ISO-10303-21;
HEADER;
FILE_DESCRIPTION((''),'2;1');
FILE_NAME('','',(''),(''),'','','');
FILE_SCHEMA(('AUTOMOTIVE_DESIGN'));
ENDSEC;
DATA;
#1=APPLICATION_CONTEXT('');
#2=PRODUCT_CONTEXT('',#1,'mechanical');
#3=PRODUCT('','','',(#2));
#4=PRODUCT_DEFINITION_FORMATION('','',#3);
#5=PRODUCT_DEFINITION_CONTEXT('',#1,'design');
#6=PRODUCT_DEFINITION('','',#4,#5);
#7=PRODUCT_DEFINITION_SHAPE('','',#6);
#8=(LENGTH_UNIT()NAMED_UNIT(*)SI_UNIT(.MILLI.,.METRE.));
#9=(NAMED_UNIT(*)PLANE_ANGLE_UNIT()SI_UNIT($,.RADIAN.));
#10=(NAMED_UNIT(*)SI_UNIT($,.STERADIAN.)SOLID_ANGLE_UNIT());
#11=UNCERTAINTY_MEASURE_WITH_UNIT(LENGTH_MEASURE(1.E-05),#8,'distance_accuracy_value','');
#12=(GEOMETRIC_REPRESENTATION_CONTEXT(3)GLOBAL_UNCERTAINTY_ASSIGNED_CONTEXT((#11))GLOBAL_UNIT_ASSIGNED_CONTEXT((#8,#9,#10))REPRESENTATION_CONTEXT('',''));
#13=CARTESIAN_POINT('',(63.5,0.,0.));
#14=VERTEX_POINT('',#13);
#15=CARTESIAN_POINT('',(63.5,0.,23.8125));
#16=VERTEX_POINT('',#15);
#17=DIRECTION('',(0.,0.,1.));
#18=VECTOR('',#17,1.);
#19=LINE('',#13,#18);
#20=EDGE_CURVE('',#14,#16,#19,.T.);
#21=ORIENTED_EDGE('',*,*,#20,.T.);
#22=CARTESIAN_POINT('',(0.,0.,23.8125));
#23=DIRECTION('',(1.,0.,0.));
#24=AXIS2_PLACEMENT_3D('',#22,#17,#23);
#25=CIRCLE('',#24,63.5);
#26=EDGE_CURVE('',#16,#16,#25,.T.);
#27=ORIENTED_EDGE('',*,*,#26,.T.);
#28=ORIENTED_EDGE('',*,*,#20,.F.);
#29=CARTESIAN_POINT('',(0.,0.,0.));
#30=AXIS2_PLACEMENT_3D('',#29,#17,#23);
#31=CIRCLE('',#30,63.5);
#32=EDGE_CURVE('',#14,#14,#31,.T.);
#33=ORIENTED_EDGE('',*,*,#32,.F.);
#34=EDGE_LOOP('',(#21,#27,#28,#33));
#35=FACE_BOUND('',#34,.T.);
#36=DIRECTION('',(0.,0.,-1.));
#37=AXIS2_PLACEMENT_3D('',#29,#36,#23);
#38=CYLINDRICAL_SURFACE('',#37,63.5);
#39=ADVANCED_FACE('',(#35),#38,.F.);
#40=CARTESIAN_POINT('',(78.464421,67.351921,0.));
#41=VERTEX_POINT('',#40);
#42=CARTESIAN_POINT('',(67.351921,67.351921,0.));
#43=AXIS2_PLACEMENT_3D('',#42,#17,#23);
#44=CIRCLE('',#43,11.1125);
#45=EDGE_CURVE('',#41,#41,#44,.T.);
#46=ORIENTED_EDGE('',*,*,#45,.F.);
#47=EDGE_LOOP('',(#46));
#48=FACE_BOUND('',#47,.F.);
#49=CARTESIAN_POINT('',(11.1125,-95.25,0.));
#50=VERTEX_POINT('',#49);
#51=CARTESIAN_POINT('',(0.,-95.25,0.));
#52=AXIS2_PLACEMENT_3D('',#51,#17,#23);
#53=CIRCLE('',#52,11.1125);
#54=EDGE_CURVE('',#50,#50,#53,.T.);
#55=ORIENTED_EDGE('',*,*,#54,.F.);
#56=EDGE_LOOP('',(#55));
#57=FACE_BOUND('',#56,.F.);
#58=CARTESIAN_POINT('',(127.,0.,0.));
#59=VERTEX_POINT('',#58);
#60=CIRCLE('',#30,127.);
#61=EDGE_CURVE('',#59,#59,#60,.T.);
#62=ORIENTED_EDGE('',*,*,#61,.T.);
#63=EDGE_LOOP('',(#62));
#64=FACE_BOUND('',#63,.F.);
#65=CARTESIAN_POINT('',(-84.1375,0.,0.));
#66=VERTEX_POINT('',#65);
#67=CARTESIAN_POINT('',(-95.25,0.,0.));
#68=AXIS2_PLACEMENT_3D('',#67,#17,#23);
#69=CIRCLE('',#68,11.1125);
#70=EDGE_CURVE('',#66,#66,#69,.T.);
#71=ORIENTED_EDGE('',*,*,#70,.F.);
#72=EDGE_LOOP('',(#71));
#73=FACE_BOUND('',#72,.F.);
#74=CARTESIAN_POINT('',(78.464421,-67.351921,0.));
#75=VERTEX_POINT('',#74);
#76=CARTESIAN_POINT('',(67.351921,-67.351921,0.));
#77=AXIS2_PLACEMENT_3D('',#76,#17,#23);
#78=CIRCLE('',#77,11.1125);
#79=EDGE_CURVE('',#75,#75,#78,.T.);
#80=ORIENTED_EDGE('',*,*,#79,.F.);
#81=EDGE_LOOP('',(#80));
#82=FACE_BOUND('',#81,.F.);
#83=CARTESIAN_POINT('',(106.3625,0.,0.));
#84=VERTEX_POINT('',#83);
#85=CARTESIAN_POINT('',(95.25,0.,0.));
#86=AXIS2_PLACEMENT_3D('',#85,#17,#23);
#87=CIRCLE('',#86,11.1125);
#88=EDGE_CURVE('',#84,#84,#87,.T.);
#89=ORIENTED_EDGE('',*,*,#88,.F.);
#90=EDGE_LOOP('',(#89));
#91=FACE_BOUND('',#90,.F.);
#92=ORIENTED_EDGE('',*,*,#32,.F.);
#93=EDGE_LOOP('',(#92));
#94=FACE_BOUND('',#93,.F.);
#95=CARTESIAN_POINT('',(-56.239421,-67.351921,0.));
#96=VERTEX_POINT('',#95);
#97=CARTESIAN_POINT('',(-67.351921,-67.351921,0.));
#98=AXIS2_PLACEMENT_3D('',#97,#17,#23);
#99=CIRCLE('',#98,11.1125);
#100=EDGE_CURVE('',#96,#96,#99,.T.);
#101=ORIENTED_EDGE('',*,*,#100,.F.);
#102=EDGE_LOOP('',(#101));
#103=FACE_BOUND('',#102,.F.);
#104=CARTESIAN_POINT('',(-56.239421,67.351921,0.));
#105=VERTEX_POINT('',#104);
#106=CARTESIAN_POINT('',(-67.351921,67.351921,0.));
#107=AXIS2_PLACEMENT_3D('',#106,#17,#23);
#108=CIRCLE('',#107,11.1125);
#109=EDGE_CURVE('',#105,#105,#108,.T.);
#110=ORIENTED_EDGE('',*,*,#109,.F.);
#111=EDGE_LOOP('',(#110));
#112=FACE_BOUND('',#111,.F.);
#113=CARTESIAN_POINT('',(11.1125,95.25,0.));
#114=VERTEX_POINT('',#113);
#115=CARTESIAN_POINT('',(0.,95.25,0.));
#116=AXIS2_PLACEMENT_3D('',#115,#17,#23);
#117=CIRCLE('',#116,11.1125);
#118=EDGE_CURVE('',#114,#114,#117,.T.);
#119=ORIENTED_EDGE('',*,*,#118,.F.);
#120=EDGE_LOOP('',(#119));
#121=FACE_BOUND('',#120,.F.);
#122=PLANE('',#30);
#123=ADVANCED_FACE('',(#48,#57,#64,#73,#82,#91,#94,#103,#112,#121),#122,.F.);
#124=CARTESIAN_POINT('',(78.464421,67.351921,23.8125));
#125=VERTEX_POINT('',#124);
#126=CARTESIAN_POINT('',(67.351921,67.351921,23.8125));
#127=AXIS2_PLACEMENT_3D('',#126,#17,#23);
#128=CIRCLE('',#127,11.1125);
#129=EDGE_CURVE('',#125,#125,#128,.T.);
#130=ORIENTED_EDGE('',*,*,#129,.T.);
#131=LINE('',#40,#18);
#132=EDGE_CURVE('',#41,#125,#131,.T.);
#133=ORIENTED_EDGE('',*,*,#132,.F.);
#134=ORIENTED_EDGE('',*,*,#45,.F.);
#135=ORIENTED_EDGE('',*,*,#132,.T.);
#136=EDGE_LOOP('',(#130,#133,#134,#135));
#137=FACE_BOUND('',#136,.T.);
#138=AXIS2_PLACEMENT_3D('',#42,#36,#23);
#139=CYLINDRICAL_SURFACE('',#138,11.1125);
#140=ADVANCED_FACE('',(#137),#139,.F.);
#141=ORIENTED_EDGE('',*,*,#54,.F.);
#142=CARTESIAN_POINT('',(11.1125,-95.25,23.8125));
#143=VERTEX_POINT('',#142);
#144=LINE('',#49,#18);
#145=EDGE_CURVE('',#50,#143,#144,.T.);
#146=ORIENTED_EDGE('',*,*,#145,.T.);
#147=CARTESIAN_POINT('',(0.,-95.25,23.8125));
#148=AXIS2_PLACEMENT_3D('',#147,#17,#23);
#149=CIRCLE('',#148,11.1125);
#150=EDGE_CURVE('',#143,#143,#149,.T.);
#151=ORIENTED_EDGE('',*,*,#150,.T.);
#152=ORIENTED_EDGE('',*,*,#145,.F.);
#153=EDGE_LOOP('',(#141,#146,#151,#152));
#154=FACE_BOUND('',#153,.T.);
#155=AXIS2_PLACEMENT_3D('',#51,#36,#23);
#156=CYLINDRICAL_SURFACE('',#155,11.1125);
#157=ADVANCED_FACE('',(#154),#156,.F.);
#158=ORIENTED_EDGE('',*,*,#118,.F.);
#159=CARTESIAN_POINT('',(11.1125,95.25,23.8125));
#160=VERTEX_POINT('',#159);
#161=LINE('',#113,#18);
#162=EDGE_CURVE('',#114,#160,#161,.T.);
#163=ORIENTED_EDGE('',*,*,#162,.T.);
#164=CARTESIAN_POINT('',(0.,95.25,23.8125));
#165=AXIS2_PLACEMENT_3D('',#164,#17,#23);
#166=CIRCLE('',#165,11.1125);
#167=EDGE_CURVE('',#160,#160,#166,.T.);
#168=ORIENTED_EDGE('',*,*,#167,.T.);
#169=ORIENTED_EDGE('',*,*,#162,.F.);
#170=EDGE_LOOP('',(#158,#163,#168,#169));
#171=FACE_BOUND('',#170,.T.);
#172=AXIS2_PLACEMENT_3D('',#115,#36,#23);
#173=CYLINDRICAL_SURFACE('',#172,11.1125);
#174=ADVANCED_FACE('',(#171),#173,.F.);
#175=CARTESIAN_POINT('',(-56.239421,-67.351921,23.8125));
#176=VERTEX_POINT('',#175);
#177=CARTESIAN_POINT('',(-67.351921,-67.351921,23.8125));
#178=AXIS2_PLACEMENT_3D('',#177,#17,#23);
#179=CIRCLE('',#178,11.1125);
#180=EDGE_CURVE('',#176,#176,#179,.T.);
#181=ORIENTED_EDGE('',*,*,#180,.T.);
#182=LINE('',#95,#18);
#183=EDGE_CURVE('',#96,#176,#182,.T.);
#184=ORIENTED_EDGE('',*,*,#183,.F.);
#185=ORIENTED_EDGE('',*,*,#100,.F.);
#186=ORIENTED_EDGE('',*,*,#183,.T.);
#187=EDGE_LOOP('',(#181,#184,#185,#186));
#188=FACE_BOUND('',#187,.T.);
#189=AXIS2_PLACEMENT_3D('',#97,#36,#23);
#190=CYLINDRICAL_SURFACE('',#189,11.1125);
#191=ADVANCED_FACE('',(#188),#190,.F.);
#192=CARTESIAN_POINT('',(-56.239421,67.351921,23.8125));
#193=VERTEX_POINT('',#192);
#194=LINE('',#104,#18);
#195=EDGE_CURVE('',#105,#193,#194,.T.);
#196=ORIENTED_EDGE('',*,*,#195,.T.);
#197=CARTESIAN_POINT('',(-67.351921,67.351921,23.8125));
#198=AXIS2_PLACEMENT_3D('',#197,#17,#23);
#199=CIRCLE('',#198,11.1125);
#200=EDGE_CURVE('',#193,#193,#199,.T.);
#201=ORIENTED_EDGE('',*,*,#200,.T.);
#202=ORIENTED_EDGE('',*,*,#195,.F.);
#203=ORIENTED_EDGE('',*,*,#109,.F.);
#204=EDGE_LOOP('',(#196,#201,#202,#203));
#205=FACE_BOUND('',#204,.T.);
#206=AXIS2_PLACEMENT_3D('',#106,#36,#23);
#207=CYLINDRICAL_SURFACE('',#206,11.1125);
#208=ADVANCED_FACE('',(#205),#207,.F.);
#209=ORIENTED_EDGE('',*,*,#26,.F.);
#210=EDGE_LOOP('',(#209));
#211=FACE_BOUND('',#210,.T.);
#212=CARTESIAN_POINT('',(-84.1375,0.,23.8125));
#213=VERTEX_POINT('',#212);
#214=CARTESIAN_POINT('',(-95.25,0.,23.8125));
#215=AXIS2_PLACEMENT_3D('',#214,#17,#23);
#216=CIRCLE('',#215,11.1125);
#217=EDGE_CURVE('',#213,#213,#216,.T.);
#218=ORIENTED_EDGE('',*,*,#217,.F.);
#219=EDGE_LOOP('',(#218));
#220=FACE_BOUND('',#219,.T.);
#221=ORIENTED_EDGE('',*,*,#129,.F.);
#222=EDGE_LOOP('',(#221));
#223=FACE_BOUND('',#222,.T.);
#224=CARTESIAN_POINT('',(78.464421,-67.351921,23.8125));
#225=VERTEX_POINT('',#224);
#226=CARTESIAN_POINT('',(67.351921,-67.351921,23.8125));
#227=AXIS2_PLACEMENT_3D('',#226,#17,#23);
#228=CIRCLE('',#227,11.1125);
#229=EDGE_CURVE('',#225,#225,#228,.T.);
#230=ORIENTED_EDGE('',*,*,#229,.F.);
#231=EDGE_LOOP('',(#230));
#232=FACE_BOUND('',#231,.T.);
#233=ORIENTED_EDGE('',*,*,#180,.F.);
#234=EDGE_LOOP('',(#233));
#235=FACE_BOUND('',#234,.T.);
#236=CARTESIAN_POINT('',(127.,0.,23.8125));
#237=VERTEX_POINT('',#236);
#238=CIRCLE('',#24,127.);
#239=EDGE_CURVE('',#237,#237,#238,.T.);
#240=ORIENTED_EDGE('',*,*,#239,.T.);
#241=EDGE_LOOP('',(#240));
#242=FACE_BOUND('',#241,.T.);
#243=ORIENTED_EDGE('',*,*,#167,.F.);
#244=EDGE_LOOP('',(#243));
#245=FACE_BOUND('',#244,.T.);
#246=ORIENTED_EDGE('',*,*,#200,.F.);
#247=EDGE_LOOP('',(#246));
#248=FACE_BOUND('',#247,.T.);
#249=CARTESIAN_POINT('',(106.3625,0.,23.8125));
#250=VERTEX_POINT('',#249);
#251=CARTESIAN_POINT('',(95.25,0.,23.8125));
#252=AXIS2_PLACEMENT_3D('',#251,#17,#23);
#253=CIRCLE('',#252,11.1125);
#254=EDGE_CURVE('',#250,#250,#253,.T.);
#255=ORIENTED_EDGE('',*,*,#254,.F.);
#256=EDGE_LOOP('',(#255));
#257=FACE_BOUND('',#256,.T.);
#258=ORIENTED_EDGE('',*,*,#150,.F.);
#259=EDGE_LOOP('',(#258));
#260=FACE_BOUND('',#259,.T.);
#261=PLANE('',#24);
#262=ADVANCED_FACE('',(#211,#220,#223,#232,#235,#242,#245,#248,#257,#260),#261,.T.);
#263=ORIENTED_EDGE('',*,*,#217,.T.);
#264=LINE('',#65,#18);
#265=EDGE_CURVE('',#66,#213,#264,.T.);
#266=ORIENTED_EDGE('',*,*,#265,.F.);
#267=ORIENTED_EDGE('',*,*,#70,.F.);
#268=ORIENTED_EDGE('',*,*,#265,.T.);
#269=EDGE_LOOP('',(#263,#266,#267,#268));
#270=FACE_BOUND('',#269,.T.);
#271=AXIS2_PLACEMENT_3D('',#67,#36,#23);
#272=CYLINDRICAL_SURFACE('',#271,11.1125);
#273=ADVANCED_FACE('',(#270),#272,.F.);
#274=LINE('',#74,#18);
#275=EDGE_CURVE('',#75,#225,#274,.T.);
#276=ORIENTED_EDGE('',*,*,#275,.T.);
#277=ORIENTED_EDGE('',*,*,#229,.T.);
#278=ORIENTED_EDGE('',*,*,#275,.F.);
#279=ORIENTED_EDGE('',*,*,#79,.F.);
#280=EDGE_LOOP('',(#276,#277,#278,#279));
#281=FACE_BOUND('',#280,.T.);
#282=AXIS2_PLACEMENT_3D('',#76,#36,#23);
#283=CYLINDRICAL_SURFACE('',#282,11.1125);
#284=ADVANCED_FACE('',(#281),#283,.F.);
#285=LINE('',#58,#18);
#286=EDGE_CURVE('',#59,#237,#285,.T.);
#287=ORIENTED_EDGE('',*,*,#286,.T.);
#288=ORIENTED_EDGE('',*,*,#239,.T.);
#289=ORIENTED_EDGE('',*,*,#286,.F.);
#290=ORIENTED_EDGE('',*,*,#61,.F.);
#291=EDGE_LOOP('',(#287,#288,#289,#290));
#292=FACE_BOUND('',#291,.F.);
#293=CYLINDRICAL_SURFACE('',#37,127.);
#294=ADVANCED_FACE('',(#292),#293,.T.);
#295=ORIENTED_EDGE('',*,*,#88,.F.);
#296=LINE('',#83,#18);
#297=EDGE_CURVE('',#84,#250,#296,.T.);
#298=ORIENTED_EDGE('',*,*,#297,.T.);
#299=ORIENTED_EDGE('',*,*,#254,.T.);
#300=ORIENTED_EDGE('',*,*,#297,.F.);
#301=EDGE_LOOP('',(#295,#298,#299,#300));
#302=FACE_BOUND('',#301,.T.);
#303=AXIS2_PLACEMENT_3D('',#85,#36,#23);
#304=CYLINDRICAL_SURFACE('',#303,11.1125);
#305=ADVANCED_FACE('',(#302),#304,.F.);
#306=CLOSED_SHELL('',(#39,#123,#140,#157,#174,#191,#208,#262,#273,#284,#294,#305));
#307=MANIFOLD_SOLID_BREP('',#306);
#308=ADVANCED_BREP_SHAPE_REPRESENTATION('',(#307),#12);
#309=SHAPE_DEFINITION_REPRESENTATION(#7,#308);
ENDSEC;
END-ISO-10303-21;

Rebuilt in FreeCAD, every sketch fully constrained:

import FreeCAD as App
import Part
import Sketcher

V = App.Vector
Q = App.Units.Quantity

doc = App.newDocument("Part")
body = doc.addObject("PartDesign::Body", "Body")

sketch1 = doc.addObject("Sketcher::SketchObject", "Sketch")
body.addObject(sketch1)
sketch1.AttachmentSupport = (doc.XY_Plane, [""])
sketch1.MapMode = "FlatFace"
sketch1.addGeometry([
    Part.Circle(V(0, 0, 0), V(0, 0, 1), 127),
    Part.Circle(V(-67, -67, 0), V(0, 0, 1), 11),
    Part.Circle(V(0, -95, 0), V(0, 0, 1), 11),
    Part.Circle(V(67, -67, 0), V(0, 0, 1), 11),
    Part.Circle(V(0, 0, 0), V(0, 0, 1), 64),
    Part.Circle(V(-95, 0, 0), V(0, 0, 1), 11),
    Part.Circle(V(-67, 67, 0), V(0, 0, 1), 11),
    Part.Circle(V(95, 0, 0), V(0, 0, 1), 11),
    Part.Circle(V(0, 95, 0), V(0, 0, 1), 11),
    Part.Circle(V(67, 67, 0), V(0, 0, 1), 11),
], False)
sketch1.addConstraint([
    Sketcher.Constraint("Coincident", 0, 3, -1, 1),
    Sketcher.Constraint("Coincident", 4, 3, -1, 1),
    Sketcher.Constraint("Equal", 1, 2),
    Sketcher.Constraint("Equal", 2, 3),
    Sketcher.Constraint("Equal", 3, 5),
    Sketcher.Constraint("Equal", 5, 6),
    Sketcher.Constraint("Equal", 6, 7),
    Sketcher.Constraint("Equal", 7, 8),
    Sketcher.Constraint("Equal", 8, 9),
    Sketcher.Constraint("Symmetric", 3, 3, 6, 3, -1, 1),
    Sketcher.Constraint("Symmetric", 5, 3, 7, 3, -1, 1),
    Sketcher.Constraint("Symmetric", 2, 3, 8, 3, -1, 1),
    Sketcher.Constraint("Symmetric", 1, 3, 9, 3, -1, 1),
    Sketcher.Constraint("Symmetric", 1, 3, 3, 3, -2),
    Sketcher.Constraint("PointOnObject", 2, 3, -2),
    Sketcher.Constraint("PointOnObject", 5, 3, -1),
    Sketcher.Constraint("Diameter", 0, Q("10 in")),
    Sketcher.Constraint("Diameter", 4, Q("5 in")),
    Sketcher.Constraint("Diameter", 1, Q("0.875 in")),
    Sketcher.Constraint("DistanceY", 2, 3, -1, 1, Q("3.75 in")),
    Sketcher.Constraint("DistanceX", 5, 3, -1, 1, Q("3.75 in")),
    Sketcher.Constraint("DistanceX", 1, 3, -1, 1, 67.351921),
    Sketcher.Constraint("DistanceY", 1, 3, -1, 1, 67.351921),
])
pad1 = doc.addObject("PartDesign::Pad", "Pad")
body.addObject(pad1)
pad1.Profile = sketch1
pad1.Length = Q("0.9375 in")

doc.recompute()
